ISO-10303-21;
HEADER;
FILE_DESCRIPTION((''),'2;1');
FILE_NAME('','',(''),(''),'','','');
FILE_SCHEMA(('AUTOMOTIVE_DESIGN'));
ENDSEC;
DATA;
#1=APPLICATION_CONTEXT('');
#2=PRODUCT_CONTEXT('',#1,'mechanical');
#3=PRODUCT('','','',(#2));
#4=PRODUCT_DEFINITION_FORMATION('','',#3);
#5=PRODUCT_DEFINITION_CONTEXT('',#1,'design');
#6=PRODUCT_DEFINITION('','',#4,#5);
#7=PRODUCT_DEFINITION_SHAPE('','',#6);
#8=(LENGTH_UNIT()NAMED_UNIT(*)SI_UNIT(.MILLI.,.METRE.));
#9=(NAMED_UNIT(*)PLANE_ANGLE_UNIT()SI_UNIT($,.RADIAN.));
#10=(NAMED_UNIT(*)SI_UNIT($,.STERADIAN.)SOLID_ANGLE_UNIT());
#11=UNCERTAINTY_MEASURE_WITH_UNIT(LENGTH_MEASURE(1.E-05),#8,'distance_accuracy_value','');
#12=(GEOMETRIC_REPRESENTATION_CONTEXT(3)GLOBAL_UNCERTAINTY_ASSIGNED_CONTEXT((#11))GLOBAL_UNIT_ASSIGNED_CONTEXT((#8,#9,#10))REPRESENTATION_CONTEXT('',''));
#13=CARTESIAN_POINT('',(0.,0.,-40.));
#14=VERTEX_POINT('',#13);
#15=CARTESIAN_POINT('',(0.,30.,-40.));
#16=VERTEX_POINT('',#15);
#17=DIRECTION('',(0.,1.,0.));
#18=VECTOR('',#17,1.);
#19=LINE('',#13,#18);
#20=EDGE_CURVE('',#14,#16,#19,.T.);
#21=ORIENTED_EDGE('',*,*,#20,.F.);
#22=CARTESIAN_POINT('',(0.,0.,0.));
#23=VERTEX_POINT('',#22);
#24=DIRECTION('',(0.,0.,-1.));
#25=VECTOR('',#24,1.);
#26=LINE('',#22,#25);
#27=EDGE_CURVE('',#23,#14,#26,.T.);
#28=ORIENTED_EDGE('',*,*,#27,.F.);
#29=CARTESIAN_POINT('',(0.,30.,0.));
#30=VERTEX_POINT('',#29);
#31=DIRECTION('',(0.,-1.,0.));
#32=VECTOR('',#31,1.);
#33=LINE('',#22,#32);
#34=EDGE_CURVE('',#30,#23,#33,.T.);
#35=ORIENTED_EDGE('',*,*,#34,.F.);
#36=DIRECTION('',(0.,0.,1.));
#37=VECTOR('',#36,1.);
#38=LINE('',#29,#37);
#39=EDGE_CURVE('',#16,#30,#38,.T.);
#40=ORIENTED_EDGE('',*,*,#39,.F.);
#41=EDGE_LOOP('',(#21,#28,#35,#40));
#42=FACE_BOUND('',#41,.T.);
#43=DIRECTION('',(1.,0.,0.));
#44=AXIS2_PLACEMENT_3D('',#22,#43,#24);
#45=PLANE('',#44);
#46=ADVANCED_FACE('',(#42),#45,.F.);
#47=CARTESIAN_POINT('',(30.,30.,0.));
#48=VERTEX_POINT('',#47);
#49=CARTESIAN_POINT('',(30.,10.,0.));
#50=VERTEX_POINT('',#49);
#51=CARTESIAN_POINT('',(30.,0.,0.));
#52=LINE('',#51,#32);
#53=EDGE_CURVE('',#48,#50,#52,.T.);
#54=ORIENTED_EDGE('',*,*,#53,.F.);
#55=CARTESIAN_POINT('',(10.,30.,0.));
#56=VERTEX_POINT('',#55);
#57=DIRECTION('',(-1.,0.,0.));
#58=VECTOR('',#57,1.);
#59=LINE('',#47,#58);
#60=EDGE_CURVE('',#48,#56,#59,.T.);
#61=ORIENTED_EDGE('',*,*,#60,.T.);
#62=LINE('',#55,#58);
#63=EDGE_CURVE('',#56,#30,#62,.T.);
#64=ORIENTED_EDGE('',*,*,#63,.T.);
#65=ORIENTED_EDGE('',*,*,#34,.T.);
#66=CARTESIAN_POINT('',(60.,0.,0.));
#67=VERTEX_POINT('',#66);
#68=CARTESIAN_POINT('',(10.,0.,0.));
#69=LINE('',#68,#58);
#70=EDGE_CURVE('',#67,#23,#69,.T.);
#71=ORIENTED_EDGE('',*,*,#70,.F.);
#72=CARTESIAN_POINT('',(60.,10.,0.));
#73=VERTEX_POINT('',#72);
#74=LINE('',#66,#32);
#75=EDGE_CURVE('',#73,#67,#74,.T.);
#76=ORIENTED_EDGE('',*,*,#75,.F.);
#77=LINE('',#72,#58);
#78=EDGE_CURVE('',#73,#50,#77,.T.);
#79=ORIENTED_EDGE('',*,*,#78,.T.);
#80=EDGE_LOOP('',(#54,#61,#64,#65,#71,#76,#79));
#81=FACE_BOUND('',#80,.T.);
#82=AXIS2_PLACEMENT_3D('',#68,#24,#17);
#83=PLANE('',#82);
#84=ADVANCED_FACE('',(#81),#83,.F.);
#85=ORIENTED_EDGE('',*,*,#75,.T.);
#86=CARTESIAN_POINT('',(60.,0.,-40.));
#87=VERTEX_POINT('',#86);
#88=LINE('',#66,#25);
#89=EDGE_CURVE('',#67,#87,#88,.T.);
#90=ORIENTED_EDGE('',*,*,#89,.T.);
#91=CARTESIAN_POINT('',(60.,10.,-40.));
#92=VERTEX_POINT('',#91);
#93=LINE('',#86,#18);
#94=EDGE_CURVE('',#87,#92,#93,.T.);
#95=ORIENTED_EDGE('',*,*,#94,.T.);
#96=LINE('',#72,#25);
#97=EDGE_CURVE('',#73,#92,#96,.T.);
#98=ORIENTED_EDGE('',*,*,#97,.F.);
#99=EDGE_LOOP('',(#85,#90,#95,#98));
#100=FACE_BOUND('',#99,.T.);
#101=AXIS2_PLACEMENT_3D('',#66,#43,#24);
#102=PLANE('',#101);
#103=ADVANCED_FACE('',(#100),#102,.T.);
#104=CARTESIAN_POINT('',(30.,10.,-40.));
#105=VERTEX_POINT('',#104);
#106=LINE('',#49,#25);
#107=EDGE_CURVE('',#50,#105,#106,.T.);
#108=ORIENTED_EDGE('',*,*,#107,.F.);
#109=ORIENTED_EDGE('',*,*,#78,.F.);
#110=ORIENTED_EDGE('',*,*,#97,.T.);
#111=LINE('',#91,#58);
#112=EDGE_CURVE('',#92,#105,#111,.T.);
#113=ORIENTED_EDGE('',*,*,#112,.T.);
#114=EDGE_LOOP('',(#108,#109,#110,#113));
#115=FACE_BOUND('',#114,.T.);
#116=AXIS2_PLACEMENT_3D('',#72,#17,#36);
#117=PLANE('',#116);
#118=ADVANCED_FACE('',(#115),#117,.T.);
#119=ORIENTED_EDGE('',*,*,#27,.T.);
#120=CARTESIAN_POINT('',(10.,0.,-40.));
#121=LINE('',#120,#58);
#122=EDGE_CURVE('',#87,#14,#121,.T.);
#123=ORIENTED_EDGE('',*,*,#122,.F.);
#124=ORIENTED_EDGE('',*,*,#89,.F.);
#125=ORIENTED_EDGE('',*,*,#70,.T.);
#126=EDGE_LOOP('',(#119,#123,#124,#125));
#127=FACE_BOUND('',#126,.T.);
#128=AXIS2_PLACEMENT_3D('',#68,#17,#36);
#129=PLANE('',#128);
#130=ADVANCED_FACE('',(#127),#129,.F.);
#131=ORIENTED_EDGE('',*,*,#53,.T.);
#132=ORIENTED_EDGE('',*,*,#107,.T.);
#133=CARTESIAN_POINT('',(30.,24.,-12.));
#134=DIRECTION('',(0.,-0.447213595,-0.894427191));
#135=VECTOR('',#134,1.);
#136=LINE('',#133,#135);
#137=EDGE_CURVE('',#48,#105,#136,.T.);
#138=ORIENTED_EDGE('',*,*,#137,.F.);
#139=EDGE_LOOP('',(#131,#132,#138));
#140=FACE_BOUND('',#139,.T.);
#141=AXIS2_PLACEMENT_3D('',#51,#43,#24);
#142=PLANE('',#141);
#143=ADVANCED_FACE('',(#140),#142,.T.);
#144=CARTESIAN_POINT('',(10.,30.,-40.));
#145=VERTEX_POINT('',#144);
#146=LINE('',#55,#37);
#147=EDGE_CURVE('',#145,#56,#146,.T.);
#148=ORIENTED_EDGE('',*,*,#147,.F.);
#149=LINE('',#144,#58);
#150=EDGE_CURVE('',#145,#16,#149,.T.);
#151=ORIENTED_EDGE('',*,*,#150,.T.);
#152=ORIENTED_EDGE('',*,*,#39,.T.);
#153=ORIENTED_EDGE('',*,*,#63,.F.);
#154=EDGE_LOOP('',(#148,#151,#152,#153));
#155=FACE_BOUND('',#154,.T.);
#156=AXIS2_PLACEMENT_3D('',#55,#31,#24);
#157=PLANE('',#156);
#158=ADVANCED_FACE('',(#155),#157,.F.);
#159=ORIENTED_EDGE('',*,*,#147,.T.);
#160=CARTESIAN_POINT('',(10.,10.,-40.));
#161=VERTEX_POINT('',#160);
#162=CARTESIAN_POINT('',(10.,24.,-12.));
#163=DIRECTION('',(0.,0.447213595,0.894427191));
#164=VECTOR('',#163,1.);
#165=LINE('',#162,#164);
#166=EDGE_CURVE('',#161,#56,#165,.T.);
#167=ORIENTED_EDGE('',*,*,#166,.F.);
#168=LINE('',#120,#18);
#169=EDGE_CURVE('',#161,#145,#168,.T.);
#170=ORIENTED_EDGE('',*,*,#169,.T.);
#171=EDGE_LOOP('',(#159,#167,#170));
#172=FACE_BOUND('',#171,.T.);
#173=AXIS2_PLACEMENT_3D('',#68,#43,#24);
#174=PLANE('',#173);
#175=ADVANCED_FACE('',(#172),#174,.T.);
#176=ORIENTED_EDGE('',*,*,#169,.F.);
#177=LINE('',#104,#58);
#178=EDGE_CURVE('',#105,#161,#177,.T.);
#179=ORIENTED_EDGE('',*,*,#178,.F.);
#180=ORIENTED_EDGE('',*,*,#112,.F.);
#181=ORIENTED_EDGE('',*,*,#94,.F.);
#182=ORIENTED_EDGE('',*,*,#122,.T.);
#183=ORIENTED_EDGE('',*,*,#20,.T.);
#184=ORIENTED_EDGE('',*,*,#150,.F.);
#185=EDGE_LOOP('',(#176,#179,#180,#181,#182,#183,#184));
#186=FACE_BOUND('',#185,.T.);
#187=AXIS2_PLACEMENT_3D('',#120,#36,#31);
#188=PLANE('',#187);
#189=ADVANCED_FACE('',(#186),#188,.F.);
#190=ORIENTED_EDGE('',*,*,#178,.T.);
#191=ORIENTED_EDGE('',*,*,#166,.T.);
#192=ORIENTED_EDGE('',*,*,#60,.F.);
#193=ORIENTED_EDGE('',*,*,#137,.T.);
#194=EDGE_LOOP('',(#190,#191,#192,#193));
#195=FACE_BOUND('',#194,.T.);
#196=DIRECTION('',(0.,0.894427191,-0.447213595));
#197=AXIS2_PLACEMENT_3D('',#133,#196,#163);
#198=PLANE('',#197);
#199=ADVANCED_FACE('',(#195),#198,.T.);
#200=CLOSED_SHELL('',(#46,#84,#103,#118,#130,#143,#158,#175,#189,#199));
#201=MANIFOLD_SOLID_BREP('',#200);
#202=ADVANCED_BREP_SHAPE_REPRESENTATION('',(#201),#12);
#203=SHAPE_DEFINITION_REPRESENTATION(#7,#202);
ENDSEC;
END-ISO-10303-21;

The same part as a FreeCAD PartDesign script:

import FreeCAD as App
import Part
import Sketcher

doc = App.newDocument("Part")
body = doc.addObject("PartDesign::Body", "Body")

sketch1 = body.newObject("Sketcher::SketchObject", "Sketch")
sketch1.AttachmentSupport = (doc.getObject("YZ_Plane"), [""])
sketch1.MapMode = "FlatFace"
sketch1.addGeometry([
    Part.LineSegment(App.Vector(30, 0, 0), App.Vector(0, 0, 0)),
    Part.LineSegment(App.Vector(0, 0, 0), App.Vector(0, -40, 0)),
    Part.LineSegment(App.Vector(0, -40, 0), App.Vector(30, -40, 0)),
    Part.LineSegment(App.Vector(30, -40, 0), App.Vector(30, 0, 0)),
], False)
sketch1.addConstraint([
    Sketcher.Constraint("Coincident", 0, 2, 1, 1),
    Sketcher.Constraint("Coincident", 1, 2, 2, 1),
    Sketcher.Constraint("Coincident", 2, 2, 3, 1),
    Sketcher.Constraint("Coincident", 3, 2, 0, 1),
    Sketcher.Constraint("Horizontal", 0),
    Sketcher.Constraint("Vertical", 1),
    Sketcher.Constraint("Horizontal", 2),
    Sketcher.Constraint("Vertical", 3),
    Sketcher.Constraint("Coincident", 0, 2, -1, 1),
    Sketcher.Constraint("DistanceX", 0, 2, 0, 1, 30.0),
    Sketcher.Constraint("DistanceY", 1, 2, 1, 1, 40.0),
])
pad1 = body.newObject("PartDesign::Pad", "Pad")
pad1.Profile = sketch1
pad1.Length = 10

sketch2 = body.newObject("Sketcher::SketchObject", "Sketch001")
sketch2.AttachmentSupport = (doc.getObject("YZ_Plane"), [""])
sketch2.MapMode = "FlatFace"
sketch2.addGeometry([
    Part.LineSegment(App.Vector(10, 0, 0), App.Vector(0, 0, 0)),
    Part.LineSegment(App.Vector(0, 0, 0), App.Vector(0, -40, 0)),
    Part.LineSegment(App.Vector(0, -40, 0), App.Vector(10, -40, 0)),
    Part.LineSegment(App.Vector(10, -40, 0), App.Vector(10, 0, 0)),
], False)
sketch2.addConstraint([
    Sketcher.Constraint("Coincident", 0, 2, 1, 1),
    Sketcher.Constraint("Coincident", 1, 2, 2, 1),
    Sketcher.Constraint("Coincident", 2, 2, 3, 1),
    Sketcher.Constraint("Coincident", 3, 2, 0, 1),
    Sketcher.Constraint("Horizontal", 0),
    Sketcher.Constraint("Vertical", 1),
    Sketcher.Constraint("Horizontal", 2),
    Sketcher.Constraint("Vertical", 3),
    Sketcher.Constraint("Coincident", 0, 2, -1, 1),
    Sketcher.Constraint("DistanceX", 0, 2, 0, 1, 10.0),
    Sketcher.Constraint("DistanceY", 1, 2, 1, 1, 40.0),
])
pad2 = body.newObject("PartDesign::Pad", "Pad001")
pad2.Profile = sketch2
pad2.Length = 60

sketch3 = body.newObject("Sketcher::SketchObject", "Sketch002")
sketch3.AttachmentSupport = (doc.getObject("YZ_Plane"), [""])
sketch3.MapMode = "FlatFace"
sketch3.addGeometry([
    Part.LineSegment(App.Vector(30, 0, 0), App.Vector(10, 0, 0)),
    Part.LineSegment(App.Vector(10, 0, 0), App.Vector(10, -40, 0)),
    Part.LineSegment(App.Vector(10, -40, 0), App.Vector(30, 0, 0)),
], False)
sketch3.addConstraint([
    Sketcher.Constraint("Coincident", 0, 2, 1, 1),
    Sketcher.Constraint("Coincident", 1, 2, 2, 1),
    Sketcher.Constraint("Coincident", 2, 2, 0, 1),
    Sketcher.Constraint("Horizontal", 0),
    Sketcher.Constraint("Vertical", 1),
    Sketcher.Constraint("PointOnObject", 0, 2, -1),
    Sketcher.Constraint("DistanceX", 0, 2, 0, 1, 20.0),
    Sketcher.Constraint("DistanceY", 1, 2, 1, 1, 40.0),
    Sketcher.Constraint("DistanceX", -1, 1, 0, 2, 10.0),
])
pad3 = body.newObject("PartDesign::Pad", "Pad002")
pad3.Profile = sketch3
pad3.Length = 30

doc.recompute()
